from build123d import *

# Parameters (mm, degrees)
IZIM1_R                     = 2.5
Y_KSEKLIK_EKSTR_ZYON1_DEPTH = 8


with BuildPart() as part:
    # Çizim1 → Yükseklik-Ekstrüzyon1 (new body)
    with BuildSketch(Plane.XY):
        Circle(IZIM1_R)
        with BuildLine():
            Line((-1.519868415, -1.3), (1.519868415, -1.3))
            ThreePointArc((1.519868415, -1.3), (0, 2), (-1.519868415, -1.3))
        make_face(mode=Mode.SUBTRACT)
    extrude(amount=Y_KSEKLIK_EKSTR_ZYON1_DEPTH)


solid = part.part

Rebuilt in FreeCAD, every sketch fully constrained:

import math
import FreeCAD as App
import Part
import Sketcher

V = App.Vector

doc = App.newDocument("Part")
body = doc.addObject("PartDesign::Body", "Body")

sketch1 = body.newObject("Sketcher::SketchObject", "Sketch")
sketch1.AttachmentSupport = (doc.getObject("XY_Plane"), [""])
sketch1.MapMode = "FlatFace"
sketch1.addGeometry(Part.Circle(V(0, 0, 0), V(0, 0, 1), 2.5), False)
sketch1.addGeometry(Part.LineSegment(V(1.5, -1.3, 0), V(-1.5, -1.3, 0)), False)
sketch1.addGeometry(Part.ArcOfCircle(Part.Circle(V(0, 0, 0), V(0, 0, 1), 2), math.radians(-41), math.radians(221)), False)
sketch1.addConstraint(Sketcher.Constraint("Coincident", 1, 1, 2, 1))
sketch1.addConstraint(Sketcher.Constraint("Coincident", 2, 2, 1, 2))
sketch1.addConstraint(Sketcher.Constraint("Horizontal", 1))
sketch1.addConstraint(Sketcher.Constraint("Coincident", 0, 3, -1, 1))
sketch1.addConstraint(Sketcher.Constraint("Coincident", 2, 3, -1, 1))
sketch1.addConstraint(Sketcher.Constraint("Diameter", 0, 5.0))
sketch1.addConstraint(Sketcher.Constraint("Radius", 2, 2.0))
sketch1.addConstraint(Sketcher.Constraint("DistanceY", 1, 1, -1, 1, 1.3))
pad1 = body.newObject("PartDesign::Pad", "Pad")
pad1.Profile = sketch1
pad1.Length = 8

doc.recompute()
